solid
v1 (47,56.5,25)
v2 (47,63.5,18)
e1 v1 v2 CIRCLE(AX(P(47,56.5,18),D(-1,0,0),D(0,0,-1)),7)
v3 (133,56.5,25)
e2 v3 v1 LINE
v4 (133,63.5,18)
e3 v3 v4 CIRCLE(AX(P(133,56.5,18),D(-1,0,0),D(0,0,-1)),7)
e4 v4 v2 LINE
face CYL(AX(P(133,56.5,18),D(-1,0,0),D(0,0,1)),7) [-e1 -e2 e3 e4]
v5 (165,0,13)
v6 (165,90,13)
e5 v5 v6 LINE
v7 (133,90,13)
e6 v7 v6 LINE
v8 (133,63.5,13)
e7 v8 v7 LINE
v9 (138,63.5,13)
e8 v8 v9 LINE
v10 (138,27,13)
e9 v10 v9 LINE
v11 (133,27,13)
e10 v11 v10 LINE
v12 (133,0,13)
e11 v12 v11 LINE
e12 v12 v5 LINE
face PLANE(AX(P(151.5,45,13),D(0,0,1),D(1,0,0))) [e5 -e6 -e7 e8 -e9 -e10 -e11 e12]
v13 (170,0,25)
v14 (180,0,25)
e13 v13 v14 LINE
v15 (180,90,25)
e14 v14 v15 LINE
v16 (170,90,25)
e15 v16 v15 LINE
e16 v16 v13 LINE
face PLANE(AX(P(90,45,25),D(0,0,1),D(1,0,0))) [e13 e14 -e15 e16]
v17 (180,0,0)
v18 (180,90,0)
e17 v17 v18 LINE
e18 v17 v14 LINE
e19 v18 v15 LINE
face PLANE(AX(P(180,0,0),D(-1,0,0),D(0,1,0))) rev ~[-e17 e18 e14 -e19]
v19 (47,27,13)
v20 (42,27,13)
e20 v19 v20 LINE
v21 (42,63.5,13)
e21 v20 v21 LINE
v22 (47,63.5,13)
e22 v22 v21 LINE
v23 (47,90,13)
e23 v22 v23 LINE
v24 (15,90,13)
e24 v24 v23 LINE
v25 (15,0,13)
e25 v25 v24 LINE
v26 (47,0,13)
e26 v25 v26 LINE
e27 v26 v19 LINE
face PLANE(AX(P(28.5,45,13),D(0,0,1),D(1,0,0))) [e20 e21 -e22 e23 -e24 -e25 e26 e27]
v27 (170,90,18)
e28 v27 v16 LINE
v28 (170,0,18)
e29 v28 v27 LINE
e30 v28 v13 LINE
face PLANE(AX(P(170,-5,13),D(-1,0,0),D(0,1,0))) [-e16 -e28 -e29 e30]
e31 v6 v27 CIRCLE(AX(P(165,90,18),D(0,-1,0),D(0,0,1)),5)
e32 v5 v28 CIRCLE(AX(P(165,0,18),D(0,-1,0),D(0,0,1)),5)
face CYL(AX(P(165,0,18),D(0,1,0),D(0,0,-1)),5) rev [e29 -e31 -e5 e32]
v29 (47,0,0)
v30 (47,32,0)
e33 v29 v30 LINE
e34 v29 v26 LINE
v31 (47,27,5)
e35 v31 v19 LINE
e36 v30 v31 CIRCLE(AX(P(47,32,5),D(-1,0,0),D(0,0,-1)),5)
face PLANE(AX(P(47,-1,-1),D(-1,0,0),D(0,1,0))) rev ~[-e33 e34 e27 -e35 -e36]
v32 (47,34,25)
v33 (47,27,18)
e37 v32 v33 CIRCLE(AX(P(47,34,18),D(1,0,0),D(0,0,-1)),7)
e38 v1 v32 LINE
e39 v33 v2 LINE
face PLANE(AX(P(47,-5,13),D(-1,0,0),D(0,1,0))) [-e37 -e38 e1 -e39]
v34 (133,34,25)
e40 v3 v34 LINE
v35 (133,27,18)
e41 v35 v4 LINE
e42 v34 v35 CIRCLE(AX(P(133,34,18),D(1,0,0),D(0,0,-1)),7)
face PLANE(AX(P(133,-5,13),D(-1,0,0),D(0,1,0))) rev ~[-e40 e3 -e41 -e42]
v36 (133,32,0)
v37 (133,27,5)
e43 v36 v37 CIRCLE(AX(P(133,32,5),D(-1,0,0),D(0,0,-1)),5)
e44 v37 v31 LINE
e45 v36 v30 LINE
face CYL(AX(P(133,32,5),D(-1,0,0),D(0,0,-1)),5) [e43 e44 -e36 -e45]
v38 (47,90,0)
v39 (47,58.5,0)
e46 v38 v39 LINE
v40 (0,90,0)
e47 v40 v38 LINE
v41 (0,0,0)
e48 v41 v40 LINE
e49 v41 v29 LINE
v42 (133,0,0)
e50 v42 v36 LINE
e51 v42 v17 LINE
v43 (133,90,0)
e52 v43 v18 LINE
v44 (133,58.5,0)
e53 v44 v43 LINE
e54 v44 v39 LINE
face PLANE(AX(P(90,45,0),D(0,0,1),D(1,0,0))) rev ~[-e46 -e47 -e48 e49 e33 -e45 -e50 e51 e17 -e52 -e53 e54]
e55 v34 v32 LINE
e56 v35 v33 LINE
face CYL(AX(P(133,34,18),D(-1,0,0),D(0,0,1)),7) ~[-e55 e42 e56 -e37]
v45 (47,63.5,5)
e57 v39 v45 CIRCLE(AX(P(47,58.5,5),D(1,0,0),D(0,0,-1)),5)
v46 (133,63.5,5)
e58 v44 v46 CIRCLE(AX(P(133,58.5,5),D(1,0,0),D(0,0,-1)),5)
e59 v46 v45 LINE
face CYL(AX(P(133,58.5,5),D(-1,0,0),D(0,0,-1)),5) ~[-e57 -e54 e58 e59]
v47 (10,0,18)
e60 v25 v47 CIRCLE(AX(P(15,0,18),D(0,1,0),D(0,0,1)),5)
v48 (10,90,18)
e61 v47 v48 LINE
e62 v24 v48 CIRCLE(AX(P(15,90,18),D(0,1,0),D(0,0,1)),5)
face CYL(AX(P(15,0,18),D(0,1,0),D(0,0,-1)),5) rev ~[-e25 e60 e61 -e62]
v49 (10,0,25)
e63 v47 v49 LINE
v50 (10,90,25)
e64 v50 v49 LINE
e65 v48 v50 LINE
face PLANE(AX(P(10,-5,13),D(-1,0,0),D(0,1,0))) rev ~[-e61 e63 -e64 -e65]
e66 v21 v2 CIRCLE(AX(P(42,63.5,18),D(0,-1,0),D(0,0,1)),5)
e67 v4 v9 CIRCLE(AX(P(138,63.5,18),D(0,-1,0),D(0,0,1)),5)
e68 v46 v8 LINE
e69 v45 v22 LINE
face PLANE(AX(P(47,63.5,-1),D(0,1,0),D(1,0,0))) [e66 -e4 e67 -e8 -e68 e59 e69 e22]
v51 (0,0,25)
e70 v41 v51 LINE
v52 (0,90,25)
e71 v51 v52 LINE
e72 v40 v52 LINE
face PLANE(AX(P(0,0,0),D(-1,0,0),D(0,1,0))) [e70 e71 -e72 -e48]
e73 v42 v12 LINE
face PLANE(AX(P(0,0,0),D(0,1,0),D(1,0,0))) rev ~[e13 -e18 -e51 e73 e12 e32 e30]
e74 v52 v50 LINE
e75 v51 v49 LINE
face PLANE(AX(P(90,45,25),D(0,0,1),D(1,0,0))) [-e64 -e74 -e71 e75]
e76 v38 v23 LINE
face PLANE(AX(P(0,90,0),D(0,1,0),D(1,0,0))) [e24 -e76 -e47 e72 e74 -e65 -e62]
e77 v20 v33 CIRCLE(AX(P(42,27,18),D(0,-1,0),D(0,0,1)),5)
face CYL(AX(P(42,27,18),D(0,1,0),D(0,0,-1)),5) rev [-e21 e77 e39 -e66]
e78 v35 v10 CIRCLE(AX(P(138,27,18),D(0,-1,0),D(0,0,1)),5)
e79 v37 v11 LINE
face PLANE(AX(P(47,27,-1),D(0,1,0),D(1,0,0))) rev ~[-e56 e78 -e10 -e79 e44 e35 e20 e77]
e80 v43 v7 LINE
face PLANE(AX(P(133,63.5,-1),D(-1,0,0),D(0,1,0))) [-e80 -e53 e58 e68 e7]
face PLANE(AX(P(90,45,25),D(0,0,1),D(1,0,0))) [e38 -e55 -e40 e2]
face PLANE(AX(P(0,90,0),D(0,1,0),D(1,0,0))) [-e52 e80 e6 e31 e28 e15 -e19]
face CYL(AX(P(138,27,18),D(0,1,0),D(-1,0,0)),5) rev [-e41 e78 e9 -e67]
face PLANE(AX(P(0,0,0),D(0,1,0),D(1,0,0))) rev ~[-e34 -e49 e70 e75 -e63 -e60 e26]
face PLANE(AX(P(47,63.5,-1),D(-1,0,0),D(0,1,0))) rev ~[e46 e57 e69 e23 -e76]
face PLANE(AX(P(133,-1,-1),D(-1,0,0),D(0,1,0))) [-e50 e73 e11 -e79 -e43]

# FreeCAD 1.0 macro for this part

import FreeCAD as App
import Part
import Sketcher
Q = App.Units.Quantity


def edges_at(feature, points):
    """Names of the edges that pass closest to the given points."""
    edges = feature.Shape.Edges
    near = lambda p: min(range(len(edges)), key=lambda i: edges[i].distToShape(Part.Vertex(*p))[0])
    return sorted({f"Edge{near(p) + 1}" for p in points})


def add_polygon(sketch, points):
    """Adds a closed chain of lines whose ends are joined by coincident constraints."""
    first, n = sketch.GeometryCount, len(points)
    for a, b in zip(points, points[1:] + points[:1]):
        sketch.addGeometry(Part.LineSegment(App.Vector(*a, 0), App.Vector(*b, 0)), False)
    for i in range(n):
        sketch.addConstraint(Sketcher.Constraint("Coincident", first + i, 2, first + (i + 1) % n, 1))

doc = App.newDocument("Part")
body = doc.addObject("PartDesign::Body", "Body")

sketch1 = body.newObject("Sketcher::SketchObject", "Sketch")
sketch1.AttachmentSupport = (doc.getObject("XY_Plane"), [""])
sketch1.MapMode = "FlatFace"
sketch1.AttachmentOffset = App.Placement(App.Vector(0, 0, 13), App.Rotation())
add_polygon(sketch1, [(133, 95), (133, -5), (170, -5), (170, 95)])
sketch1.addConstraint([
    Sketcher.Constraint("Vertical", 0),
    Sketcher.Constraint("Horizontal", 1),
    Sketcher.Constraint("Vertical", 2),
    Sketcher.Constraint("Horizontal", 3),
    Sketcher.Constraint("DistanceX", 1, 1, 1, 2, Q("37 mm")),
    Sketcher.Constraint("DistanceY", 0, 2, 0, 1, Q("100 mm")),
    Sketcher.Constraint("DistanceX", -1, 1, 0, 2, Q("133 mm")),
    Sketcher.Constraint("DistanceY", 0, 2, -1, 1, Q("5 mm")),
])
pad1 = body.newObject("PartDesign::Pad", "Pad")
pad1.Profile = sketch1
pad1.Length = 30
body2 = doc.addObject("PartDesign::Body", "Body001")

sketch2 = body2.newObject("Sketcher::SketchObject", "Sketch001")
sketch2.AttachmentSupport = (doc.getObject("XY_Plane001"), [""])
sketch2.MapMode = "FlatFace"
sketch2.AttachmentOffset = App.Placement(App.Vector(0, 0, -1), App.Rotation())
add_polygon(sketch2, [(47, 27), (47, -1), (133, -1), (133, 27)])
sketch2.addConstraint([
    Sketcher.Constraint("Vertical", 0),
    Sketcher.Constraint("Horizontal", 1),
    Sketcher.Constraint("Vertical", 2),
    Sketcher.Constraint("Horizontal", 3),
    Sketcher.Constraint("DistanceX", 1, 1, 1, 2, Q("86 mm")),
    Sketcher.Constraint("DistanceY", 0, 2, 0, 1, Q("28 mm")),
    Sketcher.Constraint("DistanceX", -1, 1, 0, 2, Q("47 mm")),
    Sketcher.Constraint("DistanceY", 0, 2, -1, 1, Q("1 mm")),
])
pad2 = body2.newObject("PartDesign::Pad", "Pad001")
pad2.Profile = sketch2
pad2.Length = 42
body3 = doc.addObject("PartDesign::Body", "Body002")

sketch3 = body3.newObject("Sketcher::SketchObject", "Sketch002")
sketch3.AttachmentSupport = (doc.getObject("XY_Plane002"), [""])
sketch3.MapMode = "FlatFace"
sketch3.AttachmentOffset = App.Placement(App.Vector(0, 0, -1), App.Rotation())
add_polygon(sketch3, [(47, 91), (47, 63.5), (133, 63.5), (133, 91)])
sketch3.addConstraint([
    Sketcher.Constraint("Vertical", 0),
    Sketcher.Constraint("Horizontal", 1),
    Sketcher.Constraint("Vertical", 2),
    Sketcher.Constraint("Horizontal", 3),
    Sketcher.Constraint("DistanceX", 1, 1, 1, 2, Q("86 mm")),
    Sketcher.Constraint("DistanceY", 0, 2, 0, 1, Q("27.5 mm")),
    Sketcher.Constraint("DistanceX", -1, 1, 0, 2, Q("47 mm")),
    Sketcher.Constraint("DistanceY", -1, 1, 2, 2, Q("91 mm")),
])
pad3 = body3.newObject("PartDesign::Pad", "Pad002")
pad3.Profile = sketch3
pad3.Length = 42
body4 = doc.addObject("PartDesign::Body", "Body003")
body4.AllowCompound = True

sketch4 = body4.newObject("Sketcher::SketchObject", "Sketch003")
sketch4.AttachmentSupport = (doc.getObject("XY_Plane003"), [""])
sketch4.MapMode = "FlatFace"
sketch4.AttachmentOffset = App.Placement(App.Vector(0, 0, 13), App.Rotation())
add_polygon(sketch4, [(10, 95), (10, -5), (47, -5), (47, 95)])
sketch4.addConstraint([
    Sketcher.Constraint("Vertical", 0),
    Sketcher.Constraint("Horizontal", 1),
    Sketcher.Constraint("Vertical", 2),
    Sketcher.Constraint("Horizontal", 3),
    Sketcher.Constraint("DistanceX", 1, 1, 1, 2, Q("37 mm")),
    Sketcher.Constraint("DistanceY", 0, 2, 0, 1, Q("100 mm")),
    Sketcher.Constraint("DistanceX", -1, 1, 0, 2, Q("10 mm")),
    Sketcher.Constraint("DistanceY", 0, 2, -1, 1, Q("5 mm")),
])
pad4 = body4.newObject("PartDesign::Pad", "Pad003")
pad4.Profile = sketch4
pad4.Length = 30
doc.recompute()

boolean = body4.newObject("PartDesign::Boolean", "Boolean")
boolean.Type = "Fuse"
boolean.addObjects([body])
doc.recompute()

boolean2 = body4.newObject("PartDesign::Boolean", "Boolean001")
boolean2.Type = "Fuse"
boolean2.addObjects([body2])
doc.recompute()

boolean3 = body4.newObject("PartDesign::Boolean", "Boolean002")
boolean3.Type = "Fuse"
boolean3.addObjects([body3])
body5 = doc.addObject("PartDesign::Body", "Body004")

sketch5 = body5.newObject("Sketcher::SketchObject", "Sketch004")
sketch5.AttachmentSupport = (doc.getObject("XY_Plane004"), [""])
sketch5.MapMode = "FlatFace"
add_polygon(sketch5, [(0, 90), (0, 0), (180, 0), (180, 90)])
sketch5.addConstraint([
    Sketcher.Constraint("Vertical", 0),
    Sketcher.Constraint("Horizontal", 1),
    Sketcher.Constraint("Vertical", 2),
    Sketcher.Constraint("Horizontal", 3),
    Sketcher.Constraint("Coincident", 0, 2, -1, 1),
    Sketcher.Constraint("DistanceX", 1, 1, 1, 2, Q("180 mm")),
    Sketcher.Constraint("DistanceY", 0, 2, 0, 1, Q("90 mm")),
])
pad5 = body5.newObject("PartDesign::Pad", "Pad004")
pad5.Profile = sketch5
pad5.Length = 25
doc.recompute()

boolean4 = body5.newObject("PartDesign::Boolean", "Boolean003")
boolean4.Type = "Cut"
boolean4.addObjects([body4])
doc.recompute()

fillet = body5.newObject("PartDesign::Fillet", "Fillet")
fillet.Base = (boolean4, edges_at(boolean4, [
    (10, 45, 13),
    (47, 45.25, 13),
    (133, 45.25, 13),
    (170, 45, 13),
]))
fillet.Radius = 5
doc.recompute()

fillet2 = body5.newObject("PartDesign::Fillet", "Fillet001")
fillet2.Base = (fillet, edges_at(fillet, [(90, 63.5, 0), (90, 27, 0)]))
fillet2.Radius = 5
doc.recompute()

fillet3 = body5.newObject("PartDesign::Fillet", "Fillet002")
fillet3.Base = (fillet2, edges_at(fillet2, [(90, 27, 25), (90, 63.5, 25)]))
fillet3.Radius = 7

doc.recompute()
